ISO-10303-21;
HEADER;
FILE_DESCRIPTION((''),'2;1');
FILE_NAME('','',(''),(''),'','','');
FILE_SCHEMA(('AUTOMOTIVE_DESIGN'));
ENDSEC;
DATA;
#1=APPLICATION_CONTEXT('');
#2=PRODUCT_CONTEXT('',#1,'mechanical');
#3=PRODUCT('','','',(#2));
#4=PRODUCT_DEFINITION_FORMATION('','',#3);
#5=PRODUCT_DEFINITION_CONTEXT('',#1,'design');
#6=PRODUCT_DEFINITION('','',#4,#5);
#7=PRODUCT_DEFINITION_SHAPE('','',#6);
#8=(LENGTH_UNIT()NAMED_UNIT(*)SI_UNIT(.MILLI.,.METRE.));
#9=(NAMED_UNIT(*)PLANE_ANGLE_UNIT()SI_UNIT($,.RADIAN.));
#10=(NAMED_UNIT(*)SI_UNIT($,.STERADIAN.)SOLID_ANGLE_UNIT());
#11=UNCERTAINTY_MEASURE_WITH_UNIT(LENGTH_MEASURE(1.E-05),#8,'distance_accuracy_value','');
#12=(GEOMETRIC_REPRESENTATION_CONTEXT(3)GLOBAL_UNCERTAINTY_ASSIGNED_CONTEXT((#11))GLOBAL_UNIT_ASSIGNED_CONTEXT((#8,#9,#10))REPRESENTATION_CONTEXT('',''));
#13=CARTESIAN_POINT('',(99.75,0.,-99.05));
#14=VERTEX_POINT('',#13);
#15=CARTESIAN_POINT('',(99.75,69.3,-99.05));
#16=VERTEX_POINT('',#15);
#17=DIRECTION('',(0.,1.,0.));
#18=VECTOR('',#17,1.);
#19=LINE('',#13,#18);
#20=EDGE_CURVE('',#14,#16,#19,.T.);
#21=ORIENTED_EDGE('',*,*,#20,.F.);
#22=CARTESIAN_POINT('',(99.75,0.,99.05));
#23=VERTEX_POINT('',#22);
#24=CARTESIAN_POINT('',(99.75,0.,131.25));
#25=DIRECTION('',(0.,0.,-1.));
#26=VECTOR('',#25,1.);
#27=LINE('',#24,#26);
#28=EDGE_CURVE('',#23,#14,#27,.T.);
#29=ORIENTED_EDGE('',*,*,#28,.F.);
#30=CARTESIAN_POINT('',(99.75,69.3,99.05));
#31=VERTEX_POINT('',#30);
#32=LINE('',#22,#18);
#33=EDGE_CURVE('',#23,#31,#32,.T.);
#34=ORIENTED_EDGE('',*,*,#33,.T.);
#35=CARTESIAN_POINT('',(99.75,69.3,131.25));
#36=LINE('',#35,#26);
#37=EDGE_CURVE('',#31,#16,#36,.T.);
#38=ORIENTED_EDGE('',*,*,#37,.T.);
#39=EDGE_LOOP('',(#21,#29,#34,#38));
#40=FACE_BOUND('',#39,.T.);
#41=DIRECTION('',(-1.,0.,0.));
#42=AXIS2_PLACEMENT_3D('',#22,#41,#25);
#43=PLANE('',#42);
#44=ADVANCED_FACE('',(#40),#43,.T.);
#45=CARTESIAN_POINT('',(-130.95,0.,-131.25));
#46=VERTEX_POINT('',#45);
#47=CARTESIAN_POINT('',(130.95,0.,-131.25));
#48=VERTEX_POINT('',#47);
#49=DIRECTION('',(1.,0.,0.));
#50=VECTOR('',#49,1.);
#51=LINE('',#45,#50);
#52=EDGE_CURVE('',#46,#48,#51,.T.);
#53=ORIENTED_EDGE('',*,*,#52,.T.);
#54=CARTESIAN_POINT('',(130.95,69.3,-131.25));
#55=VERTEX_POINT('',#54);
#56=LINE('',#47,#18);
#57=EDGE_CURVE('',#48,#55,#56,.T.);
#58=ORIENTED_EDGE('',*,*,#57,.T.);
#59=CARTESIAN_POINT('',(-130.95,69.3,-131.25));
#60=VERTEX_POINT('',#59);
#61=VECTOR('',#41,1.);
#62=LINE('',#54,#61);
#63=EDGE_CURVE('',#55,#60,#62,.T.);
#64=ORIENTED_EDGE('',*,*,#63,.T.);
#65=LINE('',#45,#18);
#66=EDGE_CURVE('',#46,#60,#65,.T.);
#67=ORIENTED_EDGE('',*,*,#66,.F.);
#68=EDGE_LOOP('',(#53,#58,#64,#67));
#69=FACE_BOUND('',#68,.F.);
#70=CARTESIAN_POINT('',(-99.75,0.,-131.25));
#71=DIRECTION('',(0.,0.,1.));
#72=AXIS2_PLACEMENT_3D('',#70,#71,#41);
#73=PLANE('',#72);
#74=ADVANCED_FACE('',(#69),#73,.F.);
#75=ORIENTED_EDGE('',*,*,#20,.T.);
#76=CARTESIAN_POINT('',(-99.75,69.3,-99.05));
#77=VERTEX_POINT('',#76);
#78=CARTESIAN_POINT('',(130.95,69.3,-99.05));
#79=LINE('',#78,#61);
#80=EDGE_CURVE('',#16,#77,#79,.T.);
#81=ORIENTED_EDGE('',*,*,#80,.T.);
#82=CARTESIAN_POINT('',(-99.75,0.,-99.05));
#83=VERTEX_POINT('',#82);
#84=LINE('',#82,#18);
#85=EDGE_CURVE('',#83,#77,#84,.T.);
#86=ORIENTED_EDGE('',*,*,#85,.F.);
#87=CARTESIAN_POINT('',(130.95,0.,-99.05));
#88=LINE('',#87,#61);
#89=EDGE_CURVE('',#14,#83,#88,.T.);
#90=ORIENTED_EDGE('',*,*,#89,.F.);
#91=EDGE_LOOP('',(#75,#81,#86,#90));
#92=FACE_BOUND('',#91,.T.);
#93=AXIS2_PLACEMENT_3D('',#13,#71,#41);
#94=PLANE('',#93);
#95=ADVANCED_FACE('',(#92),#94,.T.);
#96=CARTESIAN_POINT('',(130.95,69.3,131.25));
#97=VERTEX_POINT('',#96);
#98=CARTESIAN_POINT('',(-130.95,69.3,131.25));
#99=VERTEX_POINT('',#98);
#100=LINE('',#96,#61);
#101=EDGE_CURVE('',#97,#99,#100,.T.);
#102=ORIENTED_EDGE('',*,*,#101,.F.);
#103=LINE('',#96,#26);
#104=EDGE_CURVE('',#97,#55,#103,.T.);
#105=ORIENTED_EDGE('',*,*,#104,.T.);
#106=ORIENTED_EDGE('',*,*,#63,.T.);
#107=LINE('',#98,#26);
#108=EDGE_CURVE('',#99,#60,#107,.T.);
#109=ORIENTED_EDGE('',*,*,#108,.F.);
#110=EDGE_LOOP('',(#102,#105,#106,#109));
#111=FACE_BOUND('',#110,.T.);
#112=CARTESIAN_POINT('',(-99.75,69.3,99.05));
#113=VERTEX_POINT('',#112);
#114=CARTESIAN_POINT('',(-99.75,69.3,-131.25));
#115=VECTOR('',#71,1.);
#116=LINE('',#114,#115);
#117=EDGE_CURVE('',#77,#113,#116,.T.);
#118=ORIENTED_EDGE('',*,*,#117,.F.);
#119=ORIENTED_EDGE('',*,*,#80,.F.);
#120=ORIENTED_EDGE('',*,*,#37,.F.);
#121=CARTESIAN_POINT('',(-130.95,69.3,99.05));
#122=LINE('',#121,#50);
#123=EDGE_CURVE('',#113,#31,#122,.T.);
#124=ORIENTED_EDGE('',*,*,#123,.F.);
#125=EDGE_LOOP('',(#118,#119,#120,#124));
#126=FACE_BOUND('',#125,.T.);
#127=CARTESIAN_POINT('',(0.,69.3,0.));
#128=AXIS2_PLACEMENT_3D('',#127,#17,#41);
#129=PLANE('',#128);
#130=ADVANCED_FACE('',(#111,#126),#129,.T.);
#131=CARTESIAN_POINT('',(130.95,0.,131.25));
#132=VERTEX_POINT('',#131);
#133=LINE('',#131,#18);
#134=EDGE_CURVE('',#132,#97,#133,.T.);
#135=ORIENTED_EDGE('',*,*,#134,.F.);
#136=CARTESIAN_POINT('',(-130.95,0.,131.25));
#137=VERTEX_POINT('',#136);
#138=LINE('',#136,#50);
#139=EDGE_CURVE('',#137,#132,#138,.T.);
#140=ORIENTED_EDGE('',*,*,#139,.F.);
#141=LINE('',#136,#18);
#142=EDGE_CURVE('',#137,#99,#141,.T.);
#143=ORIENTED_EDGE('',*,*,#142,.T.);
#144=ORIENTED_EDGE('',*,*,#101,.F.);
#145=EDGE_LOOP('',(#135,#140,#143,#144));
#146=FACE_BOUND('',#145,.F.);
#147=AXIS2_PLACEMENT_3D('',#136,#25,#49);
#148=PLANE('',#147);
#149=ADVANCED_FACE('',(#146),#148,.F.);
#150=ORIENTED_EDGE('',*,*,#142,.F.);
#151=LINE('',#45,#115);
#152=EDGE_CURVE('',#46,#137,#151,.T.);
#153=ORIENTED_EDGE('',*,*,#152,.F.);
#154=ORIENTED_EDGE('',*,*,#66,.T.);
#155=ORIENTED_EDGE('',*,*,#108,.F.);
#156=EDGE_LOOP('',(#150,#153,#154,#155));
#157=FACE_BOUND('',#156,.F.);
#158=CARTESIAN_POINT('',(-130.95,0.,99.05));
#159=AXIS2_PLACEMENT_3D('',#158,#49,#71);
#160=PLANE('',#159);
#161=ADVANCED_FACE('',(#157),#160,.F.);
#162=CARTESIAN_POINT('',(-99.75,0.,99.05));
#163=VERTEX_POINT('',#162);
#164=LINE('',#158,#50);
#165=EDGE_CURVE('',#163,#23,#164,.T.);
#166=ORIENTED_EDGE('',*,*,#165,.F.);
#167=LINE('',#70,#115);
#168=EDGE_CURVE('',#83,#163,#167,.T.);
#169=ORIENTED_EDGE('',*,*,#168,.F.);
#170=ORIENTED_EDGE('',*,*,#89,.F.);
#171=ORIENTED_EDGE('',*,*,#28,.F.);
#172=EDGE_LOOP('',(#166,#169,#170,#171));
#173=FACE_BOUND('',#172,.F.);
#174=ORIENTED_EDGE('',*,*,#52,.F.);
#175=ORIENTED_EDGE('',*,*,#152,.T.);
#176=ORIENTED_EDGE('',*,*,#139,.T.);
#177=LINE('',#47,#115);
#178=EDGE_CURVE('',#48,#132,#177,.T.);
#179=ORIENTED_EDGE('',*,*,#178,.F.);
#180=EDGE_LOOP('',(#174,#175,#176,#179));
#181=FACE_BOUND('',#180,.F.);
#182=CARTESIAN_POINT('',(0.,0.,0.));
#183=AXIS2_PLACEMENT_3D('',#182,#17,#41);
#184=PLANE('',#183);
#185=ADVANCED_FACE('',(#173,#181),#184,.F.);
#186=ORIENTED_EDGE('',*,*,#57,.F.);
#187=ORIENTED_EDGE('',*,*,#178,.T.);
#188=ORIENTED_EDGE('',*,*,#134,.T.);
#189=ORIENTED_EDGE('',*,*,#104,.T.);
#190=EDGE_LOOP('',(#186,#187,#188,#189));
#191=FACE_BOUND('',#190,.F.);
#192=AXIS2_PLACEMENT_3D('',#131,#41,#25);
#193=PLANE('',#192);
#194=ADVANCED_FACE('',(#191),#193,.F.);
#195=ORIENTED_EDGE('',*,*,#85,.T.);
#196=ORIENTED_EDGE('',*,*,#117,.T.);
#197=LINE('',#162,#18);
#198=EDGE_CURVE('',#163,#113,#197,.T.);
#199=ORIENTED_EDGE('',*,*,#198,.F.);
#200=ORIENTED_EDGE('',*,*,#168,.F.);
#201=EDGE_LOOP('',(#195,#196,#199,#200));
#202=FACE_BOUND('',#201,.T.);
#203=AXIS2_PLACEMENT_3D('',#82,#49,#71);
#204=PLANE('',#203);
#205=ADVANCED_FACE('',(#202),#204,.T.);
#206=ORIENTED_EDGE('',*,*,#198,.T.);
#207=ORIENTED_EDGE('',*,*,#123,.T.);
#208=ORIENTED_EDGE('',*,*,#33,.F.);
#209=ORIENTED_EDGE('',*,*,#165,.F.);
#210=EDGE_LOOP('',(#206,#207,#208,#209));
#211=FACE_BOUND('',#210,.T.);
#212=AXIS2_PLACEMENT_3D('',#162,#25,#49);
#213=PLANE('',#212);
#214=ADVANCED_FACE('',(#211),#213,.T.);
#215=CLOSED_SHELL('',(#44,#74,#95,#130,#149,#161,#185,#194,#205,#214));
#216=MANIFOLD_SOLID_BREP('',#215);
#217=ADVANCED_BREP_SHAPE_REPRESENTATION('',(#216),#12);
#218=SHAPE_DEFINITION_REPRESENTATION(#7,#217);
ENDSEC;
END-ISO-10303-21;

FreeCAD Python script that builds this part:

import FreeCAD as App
import Part
import Sketcher

V = App.Vector


def add_polygon(sketch, points):
    """Adds a closed chain of lines whose ends are joined by coincident constraints."""
    first, n = sketch.GeometryCount, len(points)
    for a, b in zip(points, points[1:] + points[:1]):
        sketch.addGeometry(Part.LineSegment(App.Vector(*a, 0), App.Vector(*b, 0)), False)
    for i in range(n):
        sketch.addConstraint(Sketcher.Constraint("Coincident", first + i, 2, first + (i + 1) % n, 1))

doc = App.newDocument("Part")
params = doc.addObject("Spreadsheet::Sheet", "Params")
for row, (alias, value) in enumerate([
    ("sketch1_width", "261.9 mm"),
    ("sketch1_height", "262.5 mm"),
    ("pad1_length", "69.3 mm"),
    ("sketch2_width", "199.5 mm"),
    ("sketch2_height", "198.1 mm"),
    ("pocket1_length", "69.3 mm"),
], start=1):
    params.set(f"A{row}", alias)
    params.set(f"B{row}", "=" + value)
    params.setAlias(f"B{row}", alias)

body = doc.addObject("PartDesign::Body", "Body")

# Sketch on XZ plane
sketch1 = body.newObject("Sketcher::SketchObject", "Sketch")
sketch1.AttachmentSupport = (doc.getObject("XZ_Plane"), [""])
sketch1.MapMode = "FlatFace"
add_polygon(sketch1, [(-130.95, 131.25), (130.95, 131.25), (130.95, -131.25), (-130.95, -131.25)])  # lines 0-3
sketch1.addConstraint(Sketcher.Constraint("Horizontal", 0))
sketch1.addConstraint(Sketcher.Constraint("Vertical", 1))
sketch1.addConstraint(Sketcher.Constraint("Horizontal", 2))
sketch1.addConstraint(Sketcher.Constraint("Vertical", 3))
sketch1.addConstraint(Sketcher.Constraint("Symmetric", 0, 2, 2, 2, -1, 1))
sketch1.addConstraint(Sketcher.Constraint("DistanceX", 0, 1, 0, 2, 261.9))
sketch1.addConstraint(Sketcher.Constraint("DistanceY", 1, 2, 1, 1, 262.5))
sketch1.setExpression("Constraints[9]", "Params.sketch1_width")
sketch1.setExpression("Constraints[10]", "Params.sketch1_height")
pad1 = body.newObject("PartDesign::Pad", "Pad")
pad1.Profile = sketch1
pad1.setExpression("Length", "Params.pad1_length")
pad1.Reversed = True

# Sketch on XZ plane
sketch2 = body.newObject("Sketcher::SketchObject", "Sketch001")
sketch2.AttachmentSupport = (doc.getObject("XZ_Plane"), [""])
sketch2.MapMode = "FlatFace"
add_polygon(sketch2, [(-99.75, -99.05), (-99.75, 99.05), (99.75, 99.05), (99.75, -99.05)])  # lines 0-3
sketch2.addConstraint(Sketcher.Constraint("Vertical", 0))
sketch2.addConstraint(Sketcher.Constraint("Horizontal", 1))
sketch2.addConstraint(Sketcher.Constraint("Vertical", 2))
sketch2.addConstraint(Sketcher.Constraint("Horizontal", 3))
sketch2.addConstraint(Sketcher.Constraint("Symmetric", 0, 2, 2, 2, -1, 1))
sketch2.addConstraint(Sketcher.Constraint("DistanceX", 1, 1, 1, 2, 199.5))
sketch2.addConstraint(Sketcher.Constraint("DistanceY", 0, 1, 0, 2, 198.1))
sketch2.setExpression("Constraints[9]", "Params.sketch2_width")
sketch2.setExpression("Constraints[10]", "Params.sketch2_height")
pocket1 = body.newObject("PartDesign::Pocket", "Pocket")
pocket1.Profile = sketch2
pocket1.setExpression("Length", "Params.pocket1_length")

doc.recompute()
